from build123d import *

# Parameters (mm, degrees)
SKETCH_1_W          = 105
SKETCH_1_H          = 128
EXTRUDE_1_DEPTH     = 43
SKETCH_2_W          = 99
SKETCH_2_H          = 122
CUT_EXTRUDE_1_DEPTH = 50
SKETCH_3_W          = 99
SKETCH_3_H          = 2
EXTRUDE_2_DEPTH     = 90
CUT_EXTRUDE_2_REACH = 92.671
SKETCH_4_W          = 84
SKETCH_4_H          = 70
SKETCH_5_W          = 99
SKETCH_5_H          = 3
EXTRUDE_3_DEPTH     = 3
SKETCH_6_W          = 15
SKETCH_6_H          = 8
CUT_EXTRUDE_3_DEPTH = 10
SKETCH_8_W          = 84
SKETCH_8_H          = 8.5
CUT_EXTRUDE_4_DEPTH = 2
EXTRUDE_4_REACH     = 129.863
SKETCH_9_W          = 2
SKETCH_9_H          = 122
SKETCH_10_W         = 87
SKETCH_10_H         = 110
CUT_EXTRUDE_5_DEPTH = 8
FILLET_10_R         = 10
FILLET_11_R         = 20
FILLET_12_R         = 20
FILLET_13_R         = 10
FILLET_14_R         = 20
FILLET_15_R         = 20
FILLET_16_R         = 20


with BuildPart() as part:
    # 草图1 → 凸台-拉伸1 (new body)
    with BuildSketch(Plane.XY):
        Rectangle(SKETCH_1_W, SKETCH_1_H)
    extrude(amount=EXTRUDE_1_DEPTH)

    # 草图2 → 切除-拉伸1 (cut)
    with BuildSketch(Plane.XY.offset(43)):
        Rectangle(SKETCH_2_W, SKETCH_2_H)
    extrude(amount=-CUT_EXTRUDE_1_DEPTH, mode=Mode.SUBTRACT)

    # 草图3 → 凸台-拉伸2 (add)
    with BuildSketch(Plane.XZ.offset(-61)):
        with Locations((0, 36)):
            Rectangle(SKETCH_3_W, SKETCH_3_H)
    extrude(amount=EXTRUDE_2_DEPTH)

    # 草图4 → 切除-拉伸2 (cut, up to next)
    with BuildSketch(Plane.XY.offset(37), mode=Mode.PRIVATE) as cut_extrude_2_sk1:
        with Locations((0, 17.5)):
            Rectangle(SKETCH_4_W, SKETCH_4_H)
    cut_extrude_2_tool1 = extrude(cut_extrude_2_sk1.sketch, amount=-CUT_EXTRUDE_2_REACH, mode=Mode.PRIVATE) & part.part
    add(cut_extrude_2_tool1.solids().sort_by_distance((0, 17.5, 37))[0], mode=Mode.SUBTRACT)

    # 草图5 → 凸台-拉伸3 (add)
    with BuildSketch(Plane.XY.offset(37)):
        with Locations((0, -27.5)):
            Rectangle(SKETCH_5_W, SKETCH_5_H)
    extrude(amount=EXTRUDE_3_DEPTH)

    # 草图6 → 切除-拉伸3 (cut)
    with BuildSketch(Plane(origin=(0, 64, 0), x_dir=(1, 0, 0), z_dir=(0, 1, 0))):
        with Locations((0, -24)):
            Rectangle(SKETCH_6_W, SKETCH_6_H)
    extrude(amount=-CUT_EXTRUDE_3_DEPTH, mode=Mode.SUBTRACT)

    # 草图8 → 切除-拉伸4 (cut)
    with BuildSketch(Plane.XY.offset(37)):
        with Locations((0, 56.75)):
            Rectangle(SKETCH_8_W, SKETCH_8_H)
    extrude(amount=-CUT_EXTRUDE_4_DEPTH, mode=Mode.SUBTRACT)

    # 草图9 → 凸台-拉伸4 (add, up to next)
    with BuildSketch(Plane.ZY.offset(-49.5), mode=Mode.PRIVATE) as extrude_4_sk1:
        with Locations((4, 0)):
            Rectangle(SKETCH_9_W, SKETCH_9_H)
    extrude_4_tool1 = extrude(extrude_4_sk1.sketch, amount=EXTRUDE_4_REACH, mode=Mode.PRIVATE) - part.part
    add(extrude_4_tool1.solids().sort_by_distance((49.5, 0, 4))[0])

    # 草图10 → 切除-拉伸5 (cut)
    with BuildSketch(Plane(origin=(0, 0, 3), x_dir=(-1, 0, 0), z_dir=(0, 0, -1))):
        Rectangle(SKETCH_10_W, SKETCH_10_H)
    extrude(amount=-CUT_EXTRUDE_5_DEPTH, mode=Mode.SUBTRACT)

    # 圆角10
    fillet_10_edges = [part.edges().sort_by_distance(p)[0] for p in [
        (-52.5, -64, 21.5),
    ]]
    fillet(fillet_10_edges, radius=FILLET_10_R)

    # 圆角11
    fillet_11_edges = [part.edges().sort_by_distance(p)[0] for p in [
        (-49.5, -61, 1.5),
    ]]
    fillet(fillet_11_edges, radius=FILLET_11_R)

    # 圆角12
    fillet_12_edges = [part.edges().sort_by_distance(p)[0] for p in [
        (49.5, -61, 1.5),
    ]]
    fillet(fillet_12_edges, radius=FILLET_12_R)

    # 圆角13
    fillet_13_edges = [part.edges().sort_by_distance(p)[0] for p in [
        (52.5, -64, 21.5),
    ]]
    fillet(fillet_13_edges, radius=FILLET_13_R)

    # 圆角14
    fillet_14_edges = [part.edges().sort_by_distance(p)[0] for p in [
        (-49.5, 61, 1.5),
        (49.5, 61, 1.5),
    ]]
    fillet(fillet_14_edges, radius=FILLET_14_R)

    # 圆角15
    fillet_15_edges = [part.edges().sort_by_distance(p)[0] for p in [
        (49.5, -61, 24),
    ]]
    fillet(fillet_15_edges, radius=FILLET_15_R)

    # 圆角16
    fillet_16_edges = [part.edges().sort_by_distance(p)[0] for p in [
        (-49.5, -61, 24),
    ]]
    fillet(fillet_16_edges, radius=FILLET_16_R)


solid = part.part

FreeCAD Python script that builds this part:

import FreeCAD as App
import Part
import Sketcher
Q = App.Units.Quantity


def edges_at(feature, points):
    """Names of the edges that pass closest to the given points."""
    edges = feature.Shape.Edges
    near = lambda p: min(range(len(edges)), key=lambda i: edges[i].distToShape(Part.Vertex(*p))[0])
    return sorted({f"Edge{near(p) + 1}" for p in points})


def add_polygon(sketch, points):
    """Adds a closed chain of lines whose ends are joined by coincident constraints."""
    first, n = sketch.GeometryCount, len(points)
    for a, b in zip(points, points[1:] + points[:1]):
        sketch.addGeometry(Part.LineSegment(App.Vector(*a, 0), App.Vector(*b, 0)), False)
    for i in range(n):
        sketch.addConstraint(Sketcher.Constraint("Coincident", first + i, 2, first + (i + 1) % n, 1))

doc = App.newDocument("Part")
body = doc.addObject("PartDesign::Body", "Body")

sketch1 = doc.addObject("Sketcher::SketchObject", "Sketch")
body.addObject(sketch1)
sketch1.AttachmentSupport = (doc.XY_Plane, [""])
sketch1.MapMode = "FlatFace"
add_polygon(sketch1, [(-52.5, 64), (-52.5, -64), (52.5, -64), (52.5, 64)])
sketch1.addConstraint(Sketcher.Constraint("Vertical", 0))
sketch1.addConstraint(Sketcher.Constraint("Horizontal", 1))
sketch1.addConstraint(Sketcher.Constraint("Vertical", 2))
sketch1.addConstraint(Sketcher.Constraint("Horizontal", 3))
sketch1.addConstraint(Sketcher.Constraint("Symmetric", 0, 2, 2, 2, -1, 1))
sketch1.addConstraint(Sketcher.Constraint("DistanceX", 1, 1, 1, 2, Q("105 mm")))
sketch1.addConstraint(Sketcher.Constraint("DistanceY", 0, 2, 0, 1, Q("128 mm")))
pad1 = doc.addObject("PartDesign::Pad", "Pad")
body.addObject(pad1)
pad1.Profile = sketch1
pad1.Length = 43

sketch2 = doc.addObject("Sketcher::SketchObject", "Sketch001")
body.addObject(sketch2)
sketch2.AttachmentSupport = (doc.XY_Plane, [""])
sketch2.MapMode = "FlatFace"
sketch2.AttachmentOffset = App.Placement(App.Vector(0, 0, 43), App.Rotation())
add_polygon(sketch2, [(-49.5, 61), (-49.5, -61), (49.5, -61), (49.5, 61)])
sketch2.addConstraint(Sketcher.Constraint("Vertical", 0))
sketch2.addConstraint(Sketcher.Constraint("Horizontal", 1))
sketch2.addConstraint(Sketcher.Constraint("Vertical", 2))
sketch2.addConstraint(Sketcher.Constraint("Horizontal", 3))
sketch2.addConstraint(Sketcher.Constraint("Symmetric", 0, 2, 2, 2, -1, 1))
sketch2.addConstraint(Sketcher.Constraint("DistanceX", 1, 1, 1, 2, Q("99 mm")))
sketch2.addConstraint(Sketcher.Constraint("DistanceY", 0, 2, 0, 1, Q("122 mm")))
pocket1 = doc.addObject("PartDesign::Pocket", "Pocket")
body.addObject(pocket1)
pocket1.Profile = sketch2
pocket1.Length = 50

sketch3 = doc.addObject("Sketcher::SketchObject", "Sketch002")
body.addObject(sketch3)
sketch3.AttachmentSupport = (doc.XZ_Plane, [""])
sketch3.MapMode = "FlatFace"
sketch3.AttachmentOffset = App.Placement(App.Vector(0, 0, -61), App.Rotation())
add_polygon(sketch3, [(-49.5, 37), (-49.5, 35), (49.5, 35), (49.5, 37)])
sketch3.addConstraint(Sketcher.Constraint("Vertical", 0))
sketch3.addConstraint(Sketcher.Constraint("Horizontal", 1))
sketch3.addConstraint(Sketcher.Constraint("Vertical", 2))
sketch3.addConstraint(Sketcher.Constraint("Horizontal", 3))
sketch3.addConstraint(Sketcher.Constraint("DistanceX", 1, 1, 1, 2, Q("99 mm")))
sketch3.addConstraint(Sketcher.Constraint("DistanceY", 0, 2, 0, 1, Q("2 mm")))
sketch3.addConstraint(Sketcher.Constraint("DistanceY", -1, 1, 0, 2, Q("35 mm")))
sketch3.addConstraint(Sketcher.Constraint("DistanceX", 0, 2, -1, 1, Q("49.5 mm")))
pad2 = doc.addObject("PartDesign::Pad", "Pad001")
body.addObject(pad2)
pad2.Profile = sketch3
pad2.Length = 90

sketch4 = doc.addObject("Sketcher::SketchObject", "Sketch003")
body.addObject(sketch4)
sketch4.AttachmentSupport = (doc.XY_Plane, [""])
sketch4.MapMode = "FlatFace"
sketch4.AttachmentOffset = App.Placement(App.Vector(0, 0, 37), App.Rotation())
add_polygon(sketch4, [(-42, 52.5), (-42, -17.5), (42, -17.5), (42, 52.5)])
sketch4.addConstraint(Sketcher.Constraint("Vertical", 0))
sketch4.addConstraint(Sketcher.Constraint("Horizontal", 1))
sketch4.addConstraint(Sketcher.Constraint("Vertical", 2))
sketch4.addConstraint(Sketcher.Constraint("Horizontal", 3))
sketch4.addConstraint(Sketcher.Constraint("DistanceX", 1, 1, 1, 2, Q("84 mm")))
sketch4.addConstraint(Sketcher.Constraint("DistanceY", 0, 2, 0, 1, Q("70 mm")))
sketch4.addConstraint(Sketcher.Constraint("DistanceX", 0, 2, -1, 1, Q("42 mm")))
sketch4.addConstraint(Sketcher.Constraint("DistanceY", 0, 2, -1, 1, Q("17.5 mm")))
pocket2 = doc.addObject("PartDesign::Pocket", "Pocket001")
body.addObject(pocket2)
pocket2.Profile = sketch4
pocket2.Type = "UpToFirst"

sketch5 = doc.addObject("Sketcher::SketchObject", "Sketch004")
body.addObject(sketch5)
sketch5.AttachmentSupport = (doc.XY_Plane, [""])
sketch5.MapMode = "FlatFace"
sketch5.AttachmentOffset = App.Placement(App.Vector(0, 0, 37), App.Rotation())
add_polygon(sketch5, [(-49.5, -26), (-49.5, -29), (49.5, -29), (49.5, -26)])
sketch5.addConstraint(Sketcher.Constraint("Vertical", 0))
sketch5.addConstraint(Sketcher.Constraint("Horizontal", 1))
sketch5.addConstraint(Sketcher.Constraint("Vertical", 2))
sketch5.addConstraint(Sketcher.Constraint("Horizontal", 3))
sketch5.addConstraint(Sketcher.Constraint("DistanceX", 1, 1, 1, 2, Q("99 mm")))
sketch5.addConstraint(Sketcher.Constraint("DistanceY", 0, 2, 0, 1, Q("3 mm")))
sketch5.addConstraint(Sketcher.Constraint("DistanceY", 0, 2, -1, 1, Q("29 mm")))
sketch5.addConstraint(Sketcher.Constraint("DistanceX", 0, 2, -1, 1, Q("49.5 mm")))
pad3 = doc.addObject("PartDesign::Pad", "Pad002")
body.addObject(pad3)
pad3.Profile = sketch5
pad3.Length = 3

sketch6 = doc.addObject("Sketcher::SketchObject", "Sketch005")
body.addObject(sketch6)
sketch6.AttachmentSupport = (doc.XZ_Plane, [""])
sketch6.MapMode = "FlatFace"
sketch6.AttachmentOffset = App.Placement(App.Vector(0, 0, -64), App.Rotation())
add_polygon(sketch6, [(-7.5, 20), (-7.5, 28), (7.5, 28), (7.5, 20)])
sketch6.addConstraint(Sketcher.Constraint("Vertical", 0))
sketch6.addConstraint(Sketcher.Constraint("Horizontal", 1))
sketch6.addConstraint(Sketcher.Constraint("Vertical", 2))
sketch6.addConstraint(Sketcher.Constraint("Horizontal", 3))
sketch6.addConstraint(Sketcher.Constraint("DistanceX", 1, 1, 1, 2, Q("15 mm")))
sketch6.addConstraint(Sketcher.Constraint("DistanceY", 0, 1, 0, 2, Q("8 mm")))
sketch6.addConstraint(Sketcher.Constraint("DistanceY", -1, 1, 0, 2, Q("28 mm")))
sketch6.addConstraint(Sketcher.Constraint("DistanceX", 0, 2, -1, 1, Q("7.5 mm")))
pocket3 = doc.addObject("PartDesign::Pocket", "Pocket002")
body.addObject(pocket3)
pocket3.Profile = sketch6
pocket3.Length = 10
pocket3.Reversed = True

sketch7 = doc.addObject("Sketcher::SketchObject", "Sketch006")
body.addObject(sketch7)
sketch7.AttachmentSupport = (doc.XY_Plane, [""])
sketch7.MapMode = "FlatFace"
sketch7.AttachmentOffset = App.Placement(App.Vector(0, 0, 37), App.Rotation())
add_polygon(sketch7, [(-42, 61), (-42, 52.5), (42, 52.5), (42, 61)])
sketch7.addConstraint(Sketcher.Constraint("Vertical", 0))
sketch7.addConstraint(Sketcher.Constraint("Horizontal", 1))
sketch7.addConstraint(Sketcher.Constraint("Vertical", 2))
sketch7.addConstraint(Sketcher.Constraint("Horizontal", 3))
sketch7.addConstraint(Sketcher.Constraint("DistanceX", 1, 1, 1, 2, Q("84 mm")))
sketch7.addConstraint(Sketcher.Constraint("DistanceY", 0, 2, 0, 1, Q("8.5 mm")))
sketch7.addConstraint(Sketcher.Constraint("DistanceX", 0, 2, -1, 1, Q("42 mm")))
sketch7.addConstraint(Sketcher.Constraint("DistanceY", -1, 1, 2, 2, Q("61 mm")))
pocket4 = doc.addObject("PartDesign::Pocket", "Pocket003")
body.addObject(pocket4)
pocket4.Profile = sketch7
pocket4.Length = 2

sketch8 = doc.addObject("Sketcher::SketchObject", "Sketch007")
body.addObject(sketch8)
sketch8.AttachmentSupport = (doc.YZ_Plane, [""])
sketch8.MapMode = "FlatFace"
sketch8.AttachmentOffset = App.Placement(App.Vector(0, 0, 49.5), App.Rotation())
add_polygon(sketch8, [(61, 3), (-61, 3), (-61, 5), (61, 5)])
sketch8.addConstraint(Sketcher.Constraint("Horizontal", 0))
sketch8.addConstraint(Sketcher.Constraint("Vertical", 1))
sketch8.addConstraint(Sketcher.Constraint("Horizontal", 2))
sketch8.addConstraint(Sketcher.Constraint("Vertical", 3))
sketch8.addConstraint(Sketcher.Constraint("DistanceX", 0, 2, 0, 1, Q("122 mm")))
sketch8.addConstraint(Sketcher.Constraint("DistanceY", 1, 1, 1, 2, Q("2 mm")))
sketch8.addConstraint(Sketcher.Constraint("DistanceX", 0, 2, -1, 1, Q("61 mm")))
sketch8.addConstraint(Sketcher.Constraint("DistanceY", -1, 1, 0, 2, Q("3 mm")))
pad4 = doc.addObject("PartDesign::Pad", "Pad003")
body.addObject(pad4)
pad4.Profile = sketch8
pad4.Type = "UpToFirst"
pad4.Reversed = True

sketch9 = doc.addObject("Sketcher::SketchObject", "Sketch008")
body.addObject(sketch9)
sketch9.AttachmentSupport = (doc.XY_Plane, [""])
sketch9.MapMode = "FlatFace"
sketch9.AttachmentOffset = App.Placement(App.Vector(0, 0, 3), App.Rotation())
add_polygon(sketch9, [(43.5, 55), (43.5, -55), (-43.5, -55), (-43.5, 55)])
sketch9.addConstraint(Sketcher.Constraint("Vertical", 0))
sketch9.addConstraint(Sketcher.Constraint("Horizontal", 1))
sketch9.addConstraint(Sketcher.Constraint("Vertical", 2))
sketch9.addConstraint(Sketcher.Constraint("Horizontal", 3))
sketch9.addConstraint(Sketcher.Constraint("Symmetric", 0, 2, 2, 2, -1, 1))
sketch9.addConstraint(Sketcher.Constraint("DistanceX", 1, 2, 1, 1, Q("87 mm")))
sketch9.addConstraint(Sketcher.Constraint("DistanceY", 0, 2, 0, 1, Q("110 mm")))
pocket5 = doc.addObject("PartDesign::Pocket", "Pocket004")
body.addObject(pocket5)
pocket5.Profile = sketch9
pocket5.Length = 8
pocket5.Reversed = True
doc.recompute()

fillet = doc.addObject("PartDesign::Fillet", "Fillet")
body.addObject(fillet)
fillet.Base = (pocket5, edges_at(pocket5, [(-52.5, -64, 21.5)]))
fillet.Radius = 10
doc.recompute()

fillet2 = doc.addObject("PartDesign::Fillet", "Fillet001")
body.addObject(fillet2)
fillet2.Base = (fillet, edges_at(fillet, [(-49.5, -61, 1.5)]))
fillet2.Radius = 20
doc.recompute()

fillet3 = doc.addObject("PartDesign::Fillet", "Fillet002")
body.addObject(fillet3)
fillet3.Base = (fillet2, edges_at(fillet2, [(49.5, -61, 1.5)]))
fillet3.Radius = 20
doc.recompute()

fillet4 = doc.addObject("PartDesign::Fillet", "Fillet003")
body.addObject(fillet4)
fillet4.Base = (fillet3, edges_at(fillet3, [(52.5, -64, 21.5)]))
fillet4.Radius = 10
doc.recompute()

fillet5 = doc.addObject("PartDesign::Fillet", "Fillet004")
body.addObject(fillet5)
fillet5.Base = (fillet4, edges_at(fillet4, [(-49.5, 61, 1.5), (49.5, 61, 1.5)]))
fillet5.Radius = 20
doc.recompute()

fillet6 = doc.addObject("PartDesign::Fillet", "Fillet005")
body.addObject(fillet6)
fillet6.Base = (fillet5, edges_at(fillet5, [(49.5, -61, 24)]))
fillet6.Radius = 20
doc.recompute()

fillet7 = doc.addObject("PartDesign::Fillet", "Fillet006")
body.addObject(fillet7)
fillet7.Base = (fillet6, edges_at(fillet6, [(-49.5, -61, 24)]))
fillet7.Radius = 20

doc.recompute()
